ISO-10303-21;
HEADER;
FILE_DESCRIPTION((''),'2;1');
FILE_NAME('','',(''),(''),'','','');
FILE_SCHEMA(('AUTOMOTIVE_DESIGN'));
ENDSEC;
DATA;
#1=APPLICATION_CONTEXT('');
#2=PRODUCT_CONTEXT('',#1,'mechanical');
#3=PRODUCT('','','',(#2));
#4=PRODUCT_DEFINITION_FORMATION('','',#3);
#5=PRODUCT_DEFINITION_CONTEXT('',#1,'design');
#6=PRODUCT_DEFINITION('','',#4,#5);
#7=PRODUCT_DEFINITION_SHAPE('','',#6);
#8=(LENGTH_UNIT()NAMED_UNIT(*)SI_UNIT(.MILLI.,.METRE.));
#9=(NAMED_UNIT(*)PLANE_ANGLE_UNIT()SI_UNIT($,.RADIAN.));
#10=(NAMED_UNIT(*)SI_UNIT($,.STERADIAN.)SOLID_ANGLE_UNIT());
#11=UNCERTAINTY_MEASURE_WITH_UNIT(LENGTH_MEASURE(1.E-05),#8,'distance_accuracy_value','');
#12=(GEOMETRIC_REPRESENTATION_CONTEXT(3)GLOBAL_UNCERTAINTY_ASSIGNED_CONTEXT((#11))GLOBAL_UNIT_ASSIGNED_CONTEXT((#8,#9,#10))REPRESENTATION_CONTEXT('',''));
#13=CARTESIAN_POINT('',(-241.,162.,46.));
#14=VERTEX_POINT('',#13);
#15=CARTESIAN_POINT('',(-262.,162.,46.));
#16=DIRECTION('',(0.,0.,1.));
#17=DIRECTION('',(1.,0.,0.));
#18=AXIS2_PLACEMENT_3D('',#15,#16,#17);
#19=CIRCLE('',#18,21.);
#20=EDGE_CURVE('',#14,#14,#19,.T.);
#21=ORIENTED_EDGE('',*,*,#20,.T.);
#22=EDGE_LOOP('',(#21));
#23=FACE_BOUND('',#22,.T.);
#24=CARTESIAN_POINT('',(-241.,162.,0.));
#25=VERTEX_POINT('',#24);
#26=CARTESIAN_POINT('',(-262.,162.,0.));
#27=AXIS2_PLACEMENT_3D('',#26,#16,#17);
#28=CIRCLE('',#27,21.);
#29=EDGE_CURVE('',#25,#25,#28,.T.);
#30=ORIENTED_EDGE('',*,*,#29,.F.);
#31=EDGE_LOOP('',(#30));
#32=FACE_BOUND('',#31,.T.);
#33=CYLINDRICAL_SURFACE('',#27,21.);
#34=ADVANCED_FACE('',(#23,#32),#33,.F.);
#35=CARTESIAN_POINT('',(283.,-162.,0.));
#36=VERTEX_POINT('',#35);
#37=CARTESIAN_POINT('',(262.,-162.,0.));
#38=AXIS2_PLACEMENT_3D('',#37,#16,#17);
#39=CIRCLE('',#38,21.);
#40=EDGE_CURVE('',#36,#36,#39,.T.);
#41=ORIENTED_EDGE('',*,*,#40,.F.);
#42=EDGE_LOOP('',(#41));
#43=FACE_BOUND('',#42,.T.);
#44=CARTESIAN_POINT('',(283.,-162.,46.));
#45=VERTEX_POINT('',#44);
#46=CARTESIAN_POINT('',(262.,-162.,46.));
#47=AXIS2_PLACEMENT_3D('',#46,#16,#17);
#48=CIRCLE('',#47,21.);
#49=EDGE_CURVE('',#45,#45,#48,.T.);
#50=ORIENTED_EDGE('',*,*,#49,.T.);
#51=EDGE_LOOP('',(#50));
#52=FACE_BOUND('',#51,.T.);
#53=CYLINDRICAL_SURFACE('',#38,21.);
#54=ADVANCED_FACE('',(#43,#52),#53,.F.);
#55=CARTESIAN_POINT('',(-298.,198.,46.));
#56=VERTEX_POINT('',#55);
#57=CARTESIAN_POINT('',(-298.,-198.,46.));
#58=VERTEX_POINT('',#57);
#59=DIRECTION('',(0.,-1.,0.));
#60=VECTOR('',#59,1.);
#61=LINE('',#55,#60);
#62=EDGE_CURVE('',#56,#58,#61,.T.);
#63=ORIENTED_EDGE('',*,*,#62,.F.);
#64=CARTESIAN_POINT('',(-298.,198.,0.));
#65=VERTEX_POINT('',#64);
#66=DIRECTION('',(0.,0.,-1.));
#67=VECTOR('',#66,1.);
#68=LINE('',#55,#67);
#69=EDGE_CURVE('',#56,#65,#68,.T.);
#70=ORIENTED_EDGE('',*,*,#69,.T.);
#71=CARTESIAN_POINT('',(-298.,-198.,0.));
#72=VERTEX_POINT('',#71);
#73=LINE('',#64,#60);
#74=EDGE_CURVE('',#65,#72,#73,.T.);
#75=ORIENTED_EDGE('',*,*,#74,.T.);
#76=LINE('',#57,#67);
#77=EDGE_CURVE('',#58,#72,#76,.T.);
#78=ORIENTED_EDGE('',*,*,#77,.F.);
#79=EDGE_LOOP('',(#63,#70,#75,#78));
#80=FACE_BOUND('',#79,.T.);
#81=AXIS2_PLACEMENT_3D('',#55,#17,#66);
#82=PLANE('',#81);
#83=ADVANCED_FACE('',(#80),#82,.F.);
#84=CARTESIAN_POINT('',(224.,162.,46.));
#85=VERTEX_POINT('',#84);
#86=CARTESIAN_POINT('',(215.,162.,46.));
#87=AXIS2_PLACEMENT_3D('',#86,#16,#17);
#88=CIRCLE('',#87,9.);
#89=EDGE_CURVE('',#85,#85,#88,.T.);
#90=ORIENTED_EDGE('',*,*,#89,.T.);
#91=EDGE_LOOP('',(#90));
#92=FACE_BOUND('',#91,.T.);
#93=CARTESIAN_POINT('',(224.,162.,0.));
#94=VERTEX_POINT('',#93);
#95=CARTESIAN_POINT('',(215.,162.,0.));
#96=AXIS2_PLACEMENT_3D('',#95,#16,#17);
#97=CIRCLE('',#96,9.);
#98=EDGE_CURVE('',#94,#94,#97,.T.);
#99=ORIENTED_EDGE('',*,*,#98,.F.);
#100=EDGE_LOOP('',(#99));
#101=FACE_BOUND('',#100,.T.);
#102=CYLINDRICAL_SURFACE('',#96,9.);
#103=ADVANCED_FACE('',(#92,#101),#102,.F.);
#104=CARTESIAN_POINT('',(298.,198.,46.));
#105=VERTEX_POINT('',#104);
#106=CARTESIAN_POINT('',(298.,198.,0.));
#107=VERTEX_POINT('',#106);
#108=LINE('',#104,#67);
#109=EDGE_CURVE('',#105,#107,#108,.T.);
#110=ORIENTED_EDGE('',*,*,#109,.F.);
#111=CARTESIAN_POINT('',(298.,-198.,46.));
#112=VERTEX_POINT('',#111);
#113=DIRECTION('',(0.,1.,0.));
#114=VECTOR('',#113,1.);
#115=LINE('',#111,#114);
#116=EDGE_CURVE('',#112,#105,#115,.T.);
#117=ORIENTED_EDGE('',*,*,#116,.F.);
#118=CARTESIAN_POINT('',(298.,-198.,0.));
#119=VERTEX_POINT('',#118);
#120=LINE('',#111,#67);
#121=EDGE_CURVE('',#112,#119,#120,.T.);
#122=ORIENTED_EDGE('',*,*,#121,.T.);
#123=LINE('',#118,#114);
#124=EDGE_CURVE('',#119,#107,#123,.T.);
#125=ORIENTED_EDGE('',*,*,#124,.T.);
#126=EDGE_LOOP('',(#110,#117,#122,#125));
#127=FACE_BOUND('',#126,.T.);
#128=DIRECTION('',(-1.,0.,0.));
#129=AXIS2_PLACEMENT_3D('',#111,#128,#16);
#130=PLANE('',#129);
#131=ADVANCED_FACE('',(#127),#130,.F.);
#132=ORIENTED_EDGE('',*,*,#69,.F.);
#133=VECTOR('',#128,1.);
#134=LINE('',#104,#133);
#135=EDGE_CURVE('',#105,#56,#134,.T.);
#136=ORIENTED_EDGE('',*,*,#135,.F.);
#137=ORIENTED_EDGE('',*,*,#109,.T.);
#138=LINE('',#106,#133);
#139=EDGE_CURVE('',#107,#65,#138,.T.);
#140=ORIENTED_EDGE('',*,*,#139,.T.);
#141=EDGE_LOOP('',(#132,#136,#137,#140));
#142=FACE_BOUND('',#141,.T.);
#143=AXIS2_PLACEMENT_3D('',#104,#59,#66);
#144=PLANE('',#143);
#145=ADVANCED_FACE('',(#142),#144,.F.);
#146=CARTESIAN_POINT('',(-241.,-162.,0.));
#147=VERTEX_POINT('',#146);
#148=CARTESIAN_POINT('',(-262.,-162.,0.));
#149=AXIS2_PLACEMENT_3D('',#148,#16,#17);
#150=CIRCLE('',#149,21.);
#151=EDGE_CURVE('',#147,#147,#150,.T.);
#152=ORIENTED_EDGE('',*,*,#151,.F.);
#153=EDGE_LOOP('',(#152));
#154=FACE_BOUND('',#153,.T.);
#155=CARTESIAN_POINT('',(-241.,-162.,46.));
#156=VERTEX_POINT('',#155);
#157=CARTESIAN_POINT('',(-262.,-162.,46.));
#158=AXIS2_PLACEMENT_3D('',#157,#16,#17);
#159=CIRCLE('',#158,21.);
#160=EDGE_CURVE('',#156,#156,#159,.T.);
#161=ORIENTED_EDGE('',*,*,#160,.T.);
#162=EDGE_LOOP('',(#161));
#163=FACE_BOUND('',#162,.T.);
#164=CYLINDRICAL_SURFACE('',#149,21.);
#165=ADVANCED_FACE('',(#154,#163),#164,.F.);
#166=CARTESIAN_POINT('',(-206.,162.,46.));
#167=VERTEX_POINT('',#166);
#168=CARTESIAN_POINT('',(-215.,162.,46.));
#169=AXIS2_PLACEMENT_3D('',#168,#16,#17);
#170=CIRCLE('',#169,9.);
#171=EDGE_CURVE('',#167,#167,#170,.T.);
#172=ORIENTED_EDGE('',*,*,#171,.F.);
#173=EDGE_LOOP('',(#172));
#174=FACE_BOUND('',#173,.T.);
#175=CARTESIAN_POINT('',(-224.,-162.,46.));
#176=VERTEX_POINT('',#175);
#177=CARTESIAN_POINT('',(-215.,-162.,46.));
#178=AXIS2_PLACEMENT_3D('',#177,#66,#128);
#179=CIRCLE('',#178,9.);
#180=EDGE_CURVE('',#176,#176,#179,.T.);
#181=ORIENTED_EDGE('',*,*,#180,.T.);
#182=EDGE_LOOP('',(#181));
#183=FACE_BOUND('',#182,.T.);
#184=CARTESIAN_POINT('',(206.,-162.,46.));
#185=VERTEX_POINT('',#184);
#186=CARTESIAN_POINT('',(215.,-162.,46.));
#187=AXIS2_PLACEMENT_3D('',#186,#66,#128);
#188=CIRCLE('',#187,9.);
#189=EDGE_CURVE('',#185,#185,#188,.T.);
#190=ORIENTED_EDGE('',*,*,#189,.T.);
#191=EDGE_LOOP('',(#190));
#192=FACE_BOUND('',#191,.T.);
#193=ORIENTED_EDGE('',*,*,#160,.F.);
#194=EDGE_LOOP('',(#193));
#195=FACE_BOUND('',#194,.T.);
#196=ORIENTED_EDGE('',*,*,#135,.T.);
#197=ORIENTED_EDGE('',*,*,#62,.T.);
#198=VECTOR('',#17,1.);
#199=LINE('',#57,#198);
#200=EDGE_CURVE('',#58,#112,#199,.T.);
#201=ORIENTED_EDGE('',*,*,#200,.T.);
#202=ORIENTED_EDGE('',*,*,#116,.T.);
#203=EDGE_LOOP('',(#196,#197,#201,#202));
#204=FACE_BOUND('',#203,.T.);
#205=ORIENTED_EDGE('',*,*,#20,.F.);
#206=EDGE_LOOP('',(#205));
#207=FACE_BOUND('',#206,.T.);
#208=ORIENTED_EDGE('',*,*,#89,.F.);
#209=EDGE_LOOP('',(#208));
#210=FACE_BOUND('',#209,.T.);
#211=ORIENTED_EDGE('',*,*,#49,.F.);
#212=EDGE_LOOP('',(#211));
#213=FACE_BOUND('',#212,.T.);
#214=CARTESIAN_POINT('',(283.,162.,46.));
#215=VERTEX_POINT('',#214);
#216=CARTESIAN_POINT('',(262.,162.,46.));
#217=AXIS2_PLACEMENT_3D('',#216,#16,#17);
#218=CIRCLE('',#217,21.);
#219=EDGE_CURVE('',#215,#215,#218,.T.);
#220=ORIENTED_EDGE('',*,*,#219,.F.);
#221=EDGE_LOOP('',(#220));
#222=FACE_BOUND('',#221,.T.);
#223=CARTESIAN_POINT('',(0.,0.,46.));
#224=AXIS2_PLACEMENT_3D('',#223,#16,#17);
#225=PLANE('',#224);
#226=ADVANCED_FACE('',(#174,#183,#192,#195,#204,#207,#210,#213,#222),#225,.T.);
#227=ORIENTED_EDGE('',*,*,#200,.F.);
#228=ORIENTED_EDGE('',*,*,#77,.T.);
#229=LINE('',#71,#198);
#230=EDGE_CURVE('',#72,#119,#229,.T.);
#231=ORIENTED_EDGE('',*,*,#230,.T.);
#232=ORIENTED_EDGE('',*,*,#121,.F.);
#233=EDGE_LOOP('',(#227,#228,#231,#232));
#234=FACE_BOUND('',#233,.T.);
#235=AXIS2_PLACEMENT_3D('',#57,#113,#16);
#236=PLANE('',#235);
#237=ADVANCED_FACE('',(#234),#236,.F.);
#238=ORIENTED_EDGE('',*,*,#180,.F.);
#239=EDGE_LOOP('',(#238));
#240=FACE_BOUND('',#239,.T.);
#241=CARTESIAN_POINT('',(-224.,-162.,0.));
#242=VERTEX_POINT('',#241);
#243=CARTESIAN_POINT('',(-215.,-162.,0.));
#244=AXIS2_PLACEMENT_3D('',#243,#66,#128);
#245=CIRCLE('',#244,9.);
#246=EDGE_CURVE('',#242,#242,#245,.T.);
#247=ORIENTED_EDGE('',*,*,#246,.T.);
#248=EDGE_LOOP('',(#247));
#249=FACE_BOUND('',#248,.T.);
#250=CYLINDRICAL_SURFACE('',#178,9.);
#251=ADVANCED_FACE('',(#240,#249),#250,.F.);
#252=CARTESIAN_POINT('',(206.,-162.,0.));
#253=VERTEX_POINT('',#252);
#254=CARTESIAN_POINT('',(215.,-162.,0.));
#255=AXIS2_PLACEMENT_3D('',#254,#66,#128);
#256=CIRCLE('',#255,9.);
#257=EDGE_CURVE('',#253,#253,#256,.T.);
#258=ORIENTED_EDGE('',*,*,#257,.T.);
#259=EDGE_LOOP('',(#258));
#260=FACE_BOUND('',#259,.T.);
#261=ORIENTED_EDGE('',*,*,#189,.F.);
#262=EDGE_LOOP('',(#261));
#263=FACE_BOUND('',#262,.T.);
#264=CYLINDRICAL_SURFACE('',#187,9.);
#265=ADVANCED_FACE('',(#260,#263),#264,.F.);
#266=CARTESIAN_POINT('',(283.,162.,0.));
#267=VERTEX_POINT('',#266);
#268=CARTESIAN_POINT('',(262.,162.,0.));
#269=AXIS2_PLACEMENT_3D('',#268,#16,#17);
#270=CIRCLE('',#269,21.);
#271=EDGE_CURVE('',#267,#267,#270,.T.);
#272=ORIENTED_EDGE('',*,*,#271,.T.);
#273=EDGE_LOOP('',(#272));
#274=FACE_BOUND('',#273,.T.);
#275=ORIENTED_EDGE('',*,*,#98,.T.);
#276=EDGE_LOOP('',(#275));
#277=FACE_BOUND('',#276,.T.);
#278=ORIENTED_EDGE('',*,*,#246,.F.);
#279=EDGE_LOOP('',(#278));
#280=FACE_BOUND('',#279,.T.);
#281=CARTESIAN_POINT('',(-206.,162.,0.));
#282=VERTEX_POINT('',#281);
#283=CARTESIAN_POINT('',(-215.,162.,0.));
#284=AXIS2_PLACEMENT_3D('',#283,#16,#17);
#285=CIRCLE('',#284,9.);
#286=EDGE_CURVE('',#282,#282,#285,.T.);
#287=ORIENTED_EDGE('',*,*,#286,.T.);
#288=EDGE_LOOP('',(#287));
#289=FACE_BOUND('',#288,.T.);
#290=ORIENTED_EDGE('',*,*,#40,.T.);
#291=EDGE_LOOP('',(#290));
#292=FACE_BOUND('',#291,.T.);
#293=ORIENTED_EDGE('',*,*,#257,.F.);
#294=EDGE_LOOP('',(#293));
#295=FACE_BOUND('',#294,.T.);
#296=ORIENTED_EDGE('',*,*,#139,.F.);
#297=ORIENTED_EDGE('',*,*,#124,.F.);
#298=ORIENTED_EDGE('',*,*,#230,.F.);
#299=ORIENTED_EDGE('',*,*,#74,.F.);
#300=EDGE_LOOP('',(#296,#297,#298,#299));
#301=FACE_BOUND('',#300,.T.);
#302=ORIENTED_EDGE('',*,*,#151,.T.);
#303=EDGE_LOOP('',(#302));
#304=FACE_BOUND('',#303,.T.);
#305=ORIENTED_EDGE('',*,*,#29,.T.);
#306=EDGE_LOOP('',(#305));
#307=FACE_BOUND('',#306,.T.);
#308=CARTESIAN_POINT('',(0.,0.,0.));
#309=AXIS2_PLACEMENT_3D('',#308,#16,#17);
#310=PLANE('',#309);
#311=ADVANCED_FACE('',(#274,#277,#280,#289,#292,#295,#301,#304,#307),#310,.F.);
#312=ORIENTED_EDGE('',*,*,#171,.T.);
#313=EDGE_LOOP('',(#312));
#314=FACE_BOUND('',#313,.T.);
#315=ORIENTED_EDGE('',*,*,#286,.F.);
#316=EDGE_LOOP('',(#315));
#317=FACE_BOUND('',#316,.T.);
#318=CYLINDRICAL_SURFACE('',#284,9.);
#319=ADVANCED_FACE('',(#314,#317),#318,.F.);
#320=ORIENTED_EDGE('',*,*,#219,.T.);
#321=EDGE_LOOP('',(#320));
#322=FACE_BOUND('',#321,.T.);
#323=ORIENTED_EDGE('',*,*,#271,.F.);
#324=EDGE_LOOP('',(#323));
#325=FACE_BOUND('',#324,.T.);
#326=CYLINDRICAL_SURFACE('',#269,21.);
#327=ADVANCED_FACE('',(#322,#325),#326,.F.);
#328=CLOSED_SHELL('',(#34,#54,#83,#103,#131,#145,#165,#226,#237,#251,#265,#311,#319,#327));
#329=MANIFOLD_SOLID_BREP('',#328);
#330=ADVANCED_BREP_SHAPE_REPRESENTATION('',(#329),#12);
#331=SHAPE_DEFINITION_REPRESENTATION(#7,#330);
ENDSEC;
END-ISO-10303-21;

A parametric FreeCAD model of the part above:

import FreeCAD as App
import Part
import Sketcher
from FreeCAD import Vector

doc = App.newDocument("Part")
body = doc.addObject("PartDesign::Body", "Body")

sketch1 = body.newObject("Sketcher::SketchObject", "Sketch")
sketch1.AttachmentSupport = (doc.getObject("XY_Plane"), [""])
sketch1.MapMode = "FlatFace"
sketch1.addGeometry([
    Part.LineSegment(Vector(-298, 198, 0), Vector(-298, -198, 0)),
    Part.LineSegment(Vector(-298, -198, 0), Vector(298, -198, 0)),
    Part.LineSegment(Vector(298, -198, 0), Vector(298, 198, 0)),
    Part.LineSegment(Vector(298, 198, 0), Vector(-298, 198, 0)),
], False)
sketch1.addConstraint([
    Sketcher.Constraint("Coincident", 0, 2, 1, 1),
    Sketcher.Constraint("Coincident", 1, 2, 2, 1),
    Sketcher.Constraint("Coincident", 2, 2, 3, 1),
    Sketcher.Constraint("Coincident", 3, 2, 0, 1),
    Sketcher.Constraint("Vertical", 0),
    Sketcher.Constraint("Horizontal", 1),
    Sketcher.Constraint("Vertical", 2),
    Sketcher.Constraint("Horizontal", 3),
    Sketcher.Constraint("Symmetric", 0, 2, 2, 2, -1, 1),
    Sketcher.Constraint("DistanceX", 1, 1, 1, 2, 596.0),
    Sketcher.Constraint("DistanceY", 0, 2, 0, 1, 396.0),
])
pad1 = body.newObject("PartDesign::Pad", "Pad")
pad1.Profile = sketch1
pad1.Length = 46

sketch2 = body.newObject("Sketcher::SketchObject", "Sketch001")
sketch2.AttachmentSupport = (doc.getObject("XY_Plane"), [""])
sketch2.MapMode = "FlatFace"
sketch2.AttachmentOffset = App.Placement(Vector(0, 0, 46), App.Rotation())
sketch2.addGeometry(Part.Circle(Vector(262, 162, 0), Vector(0, 0, 1), 21), False)
sketch2.addConstraint([
    Sketcher.Constraint("Diameter", 0, 42.0),
    Sketcher.Constraint("DistanceX", -1, 1, 0, 3, 262.0),
    Sketcher.Constraint("DistanceY", -1, 1, 0, 3, 162.0),
])
pocket1 = body.newObject("PartDesign::Pocket", "Pocket")
pocket1.Profile = sketch2
pocket1.Length = 46

sketch3 = body.newObject("Sketcher::SketchObject", "Sketch002")
sketch3.AttachmentSupport = (doc.getObject("XY_Plane"), [""])
sketch3.MapMode = "FlatFace"
sketch3.AttachmentOffset = App.Placement(Vector(0, 0, 46), App.Rotation())
sketch3.addGeometry(Part.Circle(Vector(262, -162, 0), Vector(0, 0, 1), 21), False)
sketch3.addConstraint([
    Sketcher.Constraint("Diameter", 0, 42.0),
    Sketcher.Constraint("DistanceX", -1, 1, 0, 3, 262.0),
    Sketcher.Constraint("DistanceY", 0, 3, -1, 1, 162.0),
])
pocket2 = body.newObject("PartDesign::Pocket", "Pocket001")
pocket2.Profile = sketch3
pocket2.Length = 46

sketch4 = body.newObject("Sketcher::SketchObject", "Sketch003")
sketch4.AttachmentSupport = (doc.getObject("XY_Plane"), [""])
sketch4.MapMode = "FlatFace"
sketch4.AttachmentOffset = App.Placement(Vector(0, 0, 46), App.Rotation())
sketch4.addGeometry(Part.Circle(Vector(-262, -162, 0), Vector(0, 0, 1), 21), False)
sketch4.addConstraint([
    Sketcher.Constraint("Diameter", 0, 42.0),
    Sketcher.Constraint("DistanceX", 0, 3, -1, 1, 262.0),
    Sketcher.Constraint("DistanceY", 0, 3, -1, 1, 162.0),
])
pocket3 = body.newObject("PartDesign::Pocket", "Pocket002")
pocket3.Profile = sketch4
pocket3.Length = 46

sketch5 = body.newObject("Sketcher::SketchObject", "Sketch004")
sketch5.AttachmentSupport = (doc.getObject("XY_Plane"), [""])
sketch5.MapMode = "FlatFace"
sketch5.AttachmentOffset = App.Placement(Vector(0, 0, 46), App.Rotation())
sketch5.addGeometry(Part.Circle(Vector(-262, 162, 0), Vector(0, 0, 1), 21), False)
sketch5.addConstraint([
    Sketcher.Constraint("Diameter", 0, 42.0),
    Sketcher.Constraint("DistanceX", 0, 3, -1, 1, 262.0),
    Sketcher.Constraint("DistanceY", -1, 1, 0, 3, 162.0),
])
pocket4 = body.newObject("PartDesign::Pocket", "Pocket003")
pocket4.Profile = sketch5
pocket4.Length = 46

sketch6 = body.newObject("Sketcher::SketchObject", "Sketch005")
sketch6.AttachmentSupport = (doc.getObject("YZ_Plane"), [""])
sketch6.MapMode = "FlatFace"
sketch6.AttachmentOffset = App.Placement(Vector(0, 0, 215), App.Rotation())
sketch6.addGeometry([
    Part.LineSegment(Vector(171, 46, 0), Vector(162, 46, 0)),
    Part.LineSegment(Vector(162, 46, 0), Vector(162, 0, 0)),
    Part.LineSegment(Vector(162, 0, 0), Vector(171, 0, 0)),
    Part.LineSegment(Vector(171, 0, 0), Vector(171, 46, 0)),
], False)
sketch6.addGeometry(Part.LineSegment(Vector(162, 0, 0), Vector(162, 46, 0)), True)
sketch6.addConstraint([
    Sketcher.Constraint("Coincident", 0, 2, 1, 1),
    Sketcher.Constraint("Coincident", 1, 2, 2, 1),
    Sketcher.Constraint("Coincident", 2, 2, 3, 1),
    Sketcher.Constraint("Coincident", 3, 2, 0, 1),
    Sketcher.Constraint("Horizontal", 0),
    Sketcher.Constraint("Vertical", 1),
    Sketcher.Constraint("Horizontal", 2),
    Sketcher.Constraint("Vertical", 3),
    Sketcher.Constraint("Vertical", 4),
    Sketcher.Constraint("Coincident", 4, 1, 1, 2),
    Sketcher.Constraint("PointOnObject", 1, 2, -1),
    Sketcher.Constraint("Horizontal", 3, 2, 4, 2),
    Sketcher.Constraint("DistanceX", 0, 2, 0, 1, 9.0),
    Sketcher.Constraint("DistanceY", 1, 2, 1, 1, 46.0),
    Sketcher.Constraint("DistanceX", -1, 1, 0, 2, 162.0),
])
groove = body.newObject("PartDesign::Groove", "Groove")
groove.Profile = sketch6
groove.ReferenceAxis = (sketch6, ["Axis0"])
groove.Angle = 360

sketch7 = body.newObject("Sketcher::SketchObject", "Sketch006")
sketch7.AttachmentSupport = (doc.getObject("YZ_Plane"), [""])
sketch7.MapMode = "FlatFace"
sketch7.AttachmentOffset = App.Placement(Vector(0, 0, 215), App.Rotation())
sketch7.addGeometry([
    Part.LineSegment(Vector(-162, 46, 0), Vector(-171, 46, 0)),
    Part.LineSegment(Vector(-171, 46, 0), Vector(-171, 0, 0)),
    Part.LineSegment(Vector(-171, 0, 0), Vector(-162, 0, 0)),
    Part.LineSegment(Vector(-162, 0, 0), Vector(-162, 46, 0)),
], False)
sketch7.addGeometry(Part.LineSegment(Vector(-162, 46, 0), Vector(-162, 0, 0)), True)
sketch7.addConstraint([
    Sketcher.Constraint("Coincident", 0, 2, 1, 1),
    Sketcher.Constraint("Coincident", 1, 2, 2, 1),
    Sketcher.Constraint("Coincident", 2, 2, 3, 1),
    Sketcher.Constraint("Coincident", 3, 2, 0, 1),
    Sketcher.Constraint("Horizontal", 0),
    Sketcher.Constraint("Vertical", 1),
    Sketcher.Constraint("Horizontal", 2),
    Sketcher.Constraint("Vertical", 3),
    Sketcher.Constraint("Vertical", 4),
    Sketcher.Constraint("Coincident", 4, 1, 3, 2),
    Sketcher.Constraint("PointOnObject", 1, 2, -1),
    Sketcher.Constraint("PointOnObject", 4, 2, -1),
    Sketcher.Constraint("DistanceX", 0, 2, 0, 1, 9.0),
    Sketcher.Constraint("DistanceY", 1, 2, 1, 1, 46.0),
    Sketcher.Constraint("DistanceX", 0, 2, -1, 1, 171.0),
])
groove2 = body.newObject("PartDesign::Groove", "Groove001")
groove2.Profile = sketch7
groove2.ReferenceAxis = (sketch7, ["Axis0"])
groove2.Angle = 360

sketch8 = body.newObject("Sketcher::SketchObject", "Sketch007")
sketch8.AttachmentSupport = (doc.getObject("YZ_Plane"), [""])
sketch8.MapMode = "FlatFace"
sketch8.AttachmentOffset = App.Placement(Vector(0, 0, -215), App.Rotation())
sketch8.addGeometry([
    Part.LineSegment(Vector(171, 46, 0), Vector(162, 46, 0)),
    Part.LineSegment(Vector(162, 46, 0), Vector(162, 0, 0)),
    Part.LineSegment(Vector(162, 0, 0), Vector(171, 0, 0)),
    Part.LineSegment(Vector(171, 0, 0), Vector(171, 46, 0)),
], False)
sketch8.addGeometry(Part.LineSegment(Vector(162, 0, 0), Vector(162, 46, 0)), True)
sketch8.addConstraint([
    Sketcher.Constraint("Coincident", 0, 2, 1, 1),
    Sketcher.Constraint("Coincident", 1, 2, 2, 1),
    Sketcher.Constraint("Coincident", 2, 2, 3, 1),
    Sketcher.Constraint("Coincident", 3, 2, 0, 1),
    Sketcher.Constraint("Horizontal", 0),
    Sketcher.Constraint("Vertical", 1),
    Sketcher.Constraint("Horizontal", 2),
    Sketcher.Constraint("Vertical", 3),
    Sketcher.Constraint("Vertical", 4),
    Sketcher.Constraint("Coincident", 4, 1, 1, 2),
    Sketcher.Constraint("PointOnObject", 1, 2, -1),
    Sketcher.Constraint("Horizontal", 3, 2, 4, 2),
    Sketcher.Constraint("DistanceX", 0, 2, 0, 1, 9.0),
    Sketcher.Constraint("DistanceY", 1, 2, 1, 1, 46.0),
    Sketcher.Constraint("DistanceX", -1, 1, 0, 2, 162.0),
])
groove3 = body.newObject("PartDesign::Groove", "Groove002")
groove3.Profile = sketch8
groove3.ReferenceAxis = (sketch8, ["Axis0"])
groove3.Angle = 360

sketch9 = body.newObject("Sketcher::SketchObject", "Sketch008")
sketch9.AttachmentSupport = (doc.getObject("YZ_Plane"), [""])
sketch9.MapMode = "FlatFace"
sketch9.AttachmentOffset = App.Placement(Vector(0, 0, -215), App.Rotation())
sketch9.addGeometry([
    Part.LineSegment(Vector(-162, 46, 0), Vector(-171, 46, 0)),
    Part.LineSegment(Vector(-171, 46, 0), Vector(-171, 0, 0)),
    Part.LineSegment(Vector(-171, 0, 0), Vector(-162, 0, 0)),
    Part.LineSegment(Vector(-162, 0, 0), Vector(-162, 46, 0)),
], False)
sketch9.addGeometry(Part.LineSegment(Vector(-162, 46, 0), Vector(-162, 0, 0)), True)
sketch9.addConstraint([
    Sketcher.Constraint("Coincident", 0, 2, 1, 1),
    Sketcher.Constraint("Coincident", 1, 2, 2, 1),
    Sketcher.Constraint("Coincident", 2, 2, 3, 1),
    Sketcher.Constraint("Coincident", 3, 2, 0, 1),
    Sketcher.Constraint("Horizontal", 0),
    Sketcher.Constraint("Vertical", 1),
    Sketcher.Constraint("Horizontal", 2),
    Sketcher.Constraint("Vertical", 3),
    Sketcher.Constraint("Vertical", 4),
    Sketcher.Constraint("Coincident", 4, 1, 3, 2),
    Sketcher.Constraint("PointOnObject", 1, 2, -1),
    Sketcher.Constraint("PointOnObject", 4, 2, -1),
    Sketcher.Constraint("DistanceX", 0, 2, 0, 1, 9.0),
    Sketcher.Constraint("DistanceY", 1, 2, 1, 1, 46.0),
    Sketcher.Constraint("DistanceX", 0, 2, -1, 1, 171.0),
])
groove4 = body.newObject("PartDesign::Groove", "Groove003")
groove4.Profile = sketch9
groove4.ReferenceAxis = (sketch9, ["Axis0"])
groove4.Angle = 360

doc.recompute()
